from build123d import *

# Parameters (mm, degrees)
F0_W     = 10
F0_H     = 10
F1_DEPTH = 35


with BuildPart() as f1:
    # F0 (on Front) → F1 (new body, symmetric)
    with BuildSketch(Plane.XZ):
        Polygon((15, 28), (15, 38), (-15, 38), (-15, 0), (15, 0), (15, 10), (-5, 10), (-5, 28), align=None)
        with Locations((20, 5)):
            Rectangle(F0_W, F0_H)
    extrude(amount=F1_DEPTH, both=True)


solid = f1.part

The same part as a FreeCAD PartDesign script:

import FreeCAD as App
import Part
import Sketcher
from FreeCAD import Vector


def add_polygon(sketch, points):
    """Adds a closed chain of lines whose ends are joined by coincident constraints."""
    first, n = sketch.GeometryCount, len(points)
    for a, b in zip(points, points[1:] + points[:1]):
        sketch.addGeometry(Part.LineSegment(App.Vector(*a, 0), App.Vector(*b, 0)), False)
    for i in range(n):
        sketch.addConstraint(Sketcher.Constraint("Coincident", first + i, 2, first + (i + 1) % n, 1))

doc = App.newDocument("Part")
body = doc.addObject("PartDesign::Body", "Body")

# Sketch on XZ plane
sketch1 = doc.addObject("Sketcher::SketchObject", "Sketch")
body.addObject(sketch1)
sketch1.AttachmentSupport = (doc.XZ_Plane, [""])
sketch1.MapMode = "FlatFace"
add_polygon(sketch1, [(15, 28), (15, 38), (-15, 38), (-15, 0), (25, 0), (25, 10), (-5, 10), (-5, 28)])  # lines 0-7
sketch1.addConstraint(Sketcher.Constraint("Vertical", 0))
sketch1.addConstraint(Sketcher.Constraint("Horizontal", 1))
sketch1.addConstraint(Sketcher.Constraint("Vertical", 2))
sketch1.addConstraint(Sketcher.Constraint("Horizontal", 3))
sketch1.addConstraint(Sketcher.Constraint("Vertical", 4))
sketch1.addConstraint(Sketcher.Constraint("Horizontal", 5))
sketch1.addConstraint(Sketcher.Constraint("Vertical", 6))
sketch1.addConstraint(Sketcher.Constraint("Horizontal", 7))
sketch1.addConstraint(Sketcher.Constraint("PointOnObject", 2, 2, -1))
sketch1.addConstraint(Sketcher.Constraint("Equal", 1, 5))
sketch1.addConstraint(Sketcher.Constraint("Equal", 0, 4))
sketch1.addConstraint(Sketcher.Constraint("DistanceX", 1, 2, 1, 1, 30.0))
sketch1.addConstraint(Sketcher.Constraint("DistanceX", 3, 1, 3, 2, 40.0))
sketch1.addConstraint(Sketcher.Constraint("DistanceY", 0, 1, 0, 2, 10.0))
sketch1.addConstraint(Sketcher.Constraint("DistanceY", 2, 2, 2, 1, 38.0))
sketch1.addConstraint(Sketcher.Constraint("DistanceX", -1, 1, 0, 2, 15.0))
pad1 = doc.addObject("PartDesign::Pad", "Pad")
body.addObject(pad1)
pad1.Profile = sketch1
pad1.Length = 70
pad1.Midplane = True

doc.recompute()
